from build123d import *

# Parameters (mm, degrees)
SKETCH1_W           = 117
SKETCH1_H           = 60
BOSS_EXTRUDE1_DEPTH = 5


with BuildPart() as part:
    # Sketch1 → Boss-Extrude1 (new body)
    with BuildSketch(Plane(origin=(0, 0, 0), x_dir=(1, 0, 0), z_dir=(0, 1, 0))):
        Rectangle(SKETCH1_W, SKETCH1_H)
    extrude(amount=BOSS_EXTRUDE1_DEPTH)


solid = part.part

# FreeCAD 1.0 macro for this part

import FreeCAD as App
import Part
import Sketcher

V = App.Vector


def add_polygon(sketch, points):
    """Adds a closed chain of lines whose ends are joined by coincident constraints."""
    first, n = sketch.GeometryCount, len(points)
    for a, b in zip(points, points[1:] + points[:1]):
        sketch.addGeometry(Part.LineSegment(App.Vector(*a, 0), App.Vector(*b, 0)), False)
    for i in range(n):
        sketch.addConstraint(Sketcher.Constraint("Coincident", first + i, 2, first + (i + 1) % n, 1))

doc = App.newDocument("Part")
body = doc.addObject("PartDesign::Body", "Body")

# Sketch on XZ plane
sketch1 = body.newObject("Sketcher::SketchObject", "Sketch")
sketch1.AttachmentSupport = (doc.getObject("XZ_Plane"), [""])
sketch1.MapMode = "FlatFace"
add_polygon(sketch1, [(-58, -30), (-58, 30), (58, 30), (58, -30)])  # lines 0-3
sketch1.addConstraint([
    Sketcher.Constraint("Vertical", 0),
    Sketcher.Constraint("Horizontal", 1),
    Sketcher.Constraint("Vertical", 2),
    Sketcher.Constraint("Horizontal", 3),
    Sketcher.Constraint("Symmetric", 0, 2, 2, 2, -1, 1),
    Sketcher.Constraint("DistanceX", 1, 1, 1, 2, 117.0),
    Sketcher.Constraint("DistanceY", 0, 1, 0, 2, 60.0),
])
pad1 = body.newObject("PartDesign::Pad", "Pad")
pad1.Profile = sketch1
pad1.Length = 5
pad1.Reversed = True

doc.recompute()
